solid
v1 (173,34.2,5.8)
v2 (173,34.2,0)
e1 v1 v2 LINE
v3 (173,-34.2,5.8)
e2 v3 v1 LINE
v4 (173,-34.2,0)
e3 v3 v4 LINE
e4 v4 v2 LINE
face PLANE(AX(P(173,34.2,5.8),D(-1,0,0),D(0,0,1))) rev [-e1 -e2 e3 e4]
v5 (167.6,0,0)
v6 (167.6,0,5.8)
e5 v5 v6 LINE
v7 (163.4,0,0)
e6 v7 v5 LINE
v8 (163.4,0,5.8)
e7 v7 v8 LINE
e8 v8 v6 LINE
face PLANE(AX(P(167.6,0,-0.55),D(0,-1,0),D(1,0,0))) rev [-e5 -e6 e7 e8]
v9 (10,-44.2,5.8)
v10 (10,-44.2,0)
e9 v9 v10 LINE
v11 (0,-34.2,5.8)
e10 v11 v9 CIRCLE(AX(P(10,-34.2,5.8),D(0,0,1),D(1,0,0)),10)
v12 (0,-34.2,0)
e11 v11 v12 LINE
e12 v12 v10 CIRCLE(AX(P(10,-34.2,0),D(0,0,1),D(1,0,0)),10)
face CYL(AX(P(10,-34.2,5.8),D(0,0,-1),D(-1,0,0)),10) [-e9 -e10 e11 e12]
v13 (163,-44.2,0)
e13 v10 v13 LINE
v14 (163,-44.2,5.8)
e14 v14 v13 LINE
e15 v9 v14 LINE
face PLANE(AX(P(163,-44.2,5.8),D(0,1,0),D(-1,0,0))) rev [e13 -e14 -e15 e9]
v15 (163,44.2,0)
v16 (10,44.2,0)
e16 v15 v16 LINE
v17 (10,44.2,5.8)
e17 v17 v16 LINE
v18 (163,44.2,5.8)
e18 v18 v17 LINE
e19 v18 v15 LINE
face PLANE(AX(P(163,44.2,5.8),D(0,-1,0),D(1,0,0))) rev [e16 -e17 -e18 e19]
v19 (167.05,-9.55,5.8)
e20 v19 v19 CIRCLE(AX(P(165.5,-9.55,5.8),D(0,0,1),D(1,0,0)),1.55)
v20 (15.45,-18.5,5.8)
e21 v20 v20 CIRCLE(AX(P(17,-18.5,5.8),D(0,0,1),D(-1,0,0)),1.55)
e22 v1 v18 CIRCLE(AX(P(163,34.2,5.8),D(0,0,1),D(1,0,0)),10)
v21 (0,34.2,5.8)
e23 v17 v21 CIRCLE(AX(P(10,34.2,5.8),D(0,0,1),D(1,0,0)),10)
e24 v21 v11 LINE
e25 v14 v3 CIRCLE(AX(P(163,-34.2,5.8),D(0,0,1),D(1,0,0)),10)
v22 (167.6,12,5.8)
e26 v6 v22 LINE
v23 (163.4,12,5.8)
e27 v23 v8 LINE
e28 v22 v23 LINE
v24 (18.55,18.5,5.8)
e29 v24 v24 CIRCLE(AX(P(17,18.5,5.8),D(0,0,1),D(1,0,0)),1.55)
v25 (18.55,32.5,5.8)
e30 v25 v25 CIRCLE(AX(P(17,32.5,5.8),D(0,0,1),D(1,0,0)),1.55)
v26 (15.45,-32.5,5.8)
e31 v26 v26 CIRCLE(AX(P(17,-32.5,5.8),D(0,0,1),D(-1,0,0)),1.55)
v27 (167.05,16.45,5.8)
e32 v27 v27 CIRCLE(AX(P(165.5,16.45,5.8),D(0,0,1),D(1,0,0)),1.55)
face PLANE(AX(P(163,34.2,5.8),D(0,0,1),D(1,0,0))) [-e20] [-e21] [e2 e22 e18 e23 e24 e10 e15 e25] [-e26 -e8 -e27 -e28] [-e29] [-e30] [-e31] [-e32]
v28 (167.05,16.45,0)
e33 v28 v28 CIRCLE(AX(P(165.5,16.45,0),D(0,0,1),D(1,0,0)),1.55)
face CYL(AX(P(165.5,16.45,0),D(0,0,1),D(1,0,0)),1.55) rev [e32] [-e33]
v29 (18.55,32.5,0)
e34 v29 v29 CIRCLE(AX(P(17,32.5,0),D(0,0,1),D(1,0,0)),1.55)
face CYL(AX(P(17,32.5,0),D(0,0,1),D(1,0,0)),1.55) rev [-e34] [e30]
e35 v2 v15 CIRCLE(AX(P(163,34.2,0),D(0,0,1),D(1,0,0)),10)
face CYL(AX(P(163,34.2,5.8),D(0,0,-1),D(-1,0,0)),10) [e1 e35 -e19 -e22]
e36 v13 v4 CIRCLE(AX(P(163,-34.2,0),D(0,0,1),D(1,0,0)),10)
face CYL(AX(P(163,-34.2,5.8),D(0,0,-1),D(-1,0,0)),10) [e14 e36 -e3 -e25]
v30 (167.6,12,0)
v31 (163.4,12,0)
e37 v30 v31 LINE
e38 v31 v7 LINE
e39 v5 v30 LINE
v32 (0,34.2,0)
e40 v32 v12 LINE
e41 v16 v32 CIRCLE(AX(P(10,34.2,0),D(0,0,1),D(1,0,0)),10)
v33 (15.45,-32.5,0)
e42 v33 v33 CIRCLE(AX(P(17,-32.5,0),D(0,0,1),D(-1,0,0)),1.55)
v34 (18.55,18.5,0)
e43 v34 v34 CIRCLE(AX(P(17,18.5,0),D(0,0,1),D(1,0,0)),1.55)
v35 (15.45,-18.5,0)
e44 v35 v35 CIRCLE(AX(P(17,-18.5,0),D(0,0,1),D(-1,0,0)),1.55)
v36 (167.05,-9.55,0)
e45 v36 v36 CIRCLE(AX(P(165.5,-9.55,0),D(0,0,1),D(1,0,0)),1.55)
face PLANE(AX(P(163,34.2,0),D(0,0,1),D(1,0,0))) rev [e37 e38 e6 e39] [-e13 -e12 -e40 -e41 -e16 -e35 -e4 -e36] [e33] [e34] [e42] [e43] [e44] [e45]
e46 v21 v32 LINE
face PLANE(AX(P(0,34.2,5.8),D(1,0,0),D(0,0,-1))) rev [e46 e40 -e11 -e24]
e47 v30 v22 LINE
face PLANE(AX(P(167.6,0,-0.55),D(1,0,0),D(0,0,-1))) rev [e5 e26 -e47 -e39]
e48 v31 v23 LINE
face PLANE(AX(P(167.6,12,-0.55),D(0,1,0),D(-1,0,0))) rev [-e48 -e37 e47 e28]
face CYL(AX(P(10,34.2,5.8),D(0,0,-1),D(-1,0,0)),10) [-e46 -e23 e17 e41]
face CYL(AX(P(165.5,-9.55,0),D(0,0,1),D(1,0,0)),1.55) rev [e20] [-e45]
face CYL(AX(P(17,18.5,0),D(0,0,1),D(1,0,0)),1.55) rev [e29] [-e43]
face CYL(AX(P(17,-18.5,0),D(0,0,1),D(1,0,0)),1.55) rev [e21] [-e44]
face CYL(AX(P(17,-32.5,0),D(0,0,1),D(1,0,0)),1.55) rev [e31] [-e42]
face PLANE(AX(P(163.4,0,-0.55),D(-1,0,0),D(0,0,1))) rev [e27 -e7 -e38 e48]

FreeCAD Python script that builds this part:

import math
import FreeCAD as App
import Part
import Sketcher

V = App.Vector

doc = App.newDocument("Part")
body = doc.addObject("PartDesign::Body", "Body")

# Sketch on XY plane
sketch1 = doc.addObject("Sketcher::SketchObject", "Sketch")
body.addObject(sketch1)
sketch1.AttachmentSupport = (doc.XY_Plane, [""])
sketch1.MapMode = "FlatFace"
sketch1.addGeometry([
    Part.LineSegment(V(163, 44, 0), V(10, 44, 0)),  # 0
    Part.ArcOfCircle(Part.Circle(V(10, 34, 0), V(0, 0, 1), 10), math.radians(90), math.radians(180)),  # 1
    Part.LineSegment(V(0, 34, 0), V(0, -34, 0)),  # 2
    Part.ArcOfCircle(Part.Circle(V(10, -34, 0), V(0, 0, 1), 10), math.radians(180), math.radians(270)),  # 3
    Part.LineSegment(V(10, -44, 0), V(163, -44, 0)),  # 4
    Part.ArcOfCircle(Part.Circle(V(163, -34, 0), V(0, 0, 1), 10), math.radians(-90), math.radians(0)),  # 5
    Part.LineSegment(V(173, -34, 0), V(173, 34, 0)),  # 6
    Part.ArcOfCircle(Part.Circle(V(163, 34, 0), V(0, 0, 1), 10), math.radians(0), math.radians(90)),  # 7
], False)
sketch1.addConstraint([
    Sketcher.Constraint("Tangent", 0, 2, 1, 1),
    Sketcher.Constraint("Tangent", 1, 2, 2, 1),
    Sketcher.Constraint("Tangent", 2, 2, 3, 1),
    Sketcher.Constraint("Tangent", 3, 2, 4, 1),
    Sketcher.Constraint("Tangent", 4, 2, 5, 1),
    Sketcher.Constraint("Tangent", 5, 2, 6, 1),
    Sketcher.Constraint("Tangent", 6, 2, 7, 1),
    Sketcher.Constraint("Tangent", 7, 2, 0, 1),
    Sketcher.Constraint("Horizontal", 0),
    Sketcher.Constraint("Vertical", 2),
    Sketcher.Constraint("Horizontal", 4),
    Sketcher.Constraint("Vertical", 6),
    Sketcher.Constraint("Equal", 1, 3),
    Sketcher.Constraint("Equal", 3, 5),
    Sketcher.Constraint("Equal", 5, 7),
    Sketcher.Constraint("Symmetric", 1, 2, 2, 2, -1, 1),
    Sketcher.Constraint("Radius", 1, 10.0),
    Sketcher.Constraint("DistanceX", 0, 2, 0, 1, 153.0),
    Sketcher.Constraint("DistanceY", 2, 2, 2, 1, 68.4),
])
pad1 = doc.addObject("PartDesign::Pad", "Pad")
body.addObject(pad1)
pad1.Profile = sketch1
pad1.Length = 5.8

# Sketch on XY plane
sketch2 = doc.addObject("Sketcher::SketchObject", "Sketch001")
body.addObject(sketch2)
sketch2.AttachmentSupport = (doc.XY_Plane, [""])
sketch2.MapMode = "FlatFace"
sketch2.AttachmentOffset = App.Placement(V(0, 0, 5.8), App.Rotation())
sketch2.addGeometry([
    Part.LineSegment(V(163.4, 12, 0), V(163.4, 0, 0)),
    Part.LineSegment(V(163.4, 0, 0), V(167.6, 0, 0)),
    Part.LineSegment(V(167.6, 0, 0), V(167.6, 12, 0)),
    Part.LineSegment(V(167.6, 12, 0), V(163.4, 12, 0)),
], False)
sketch2.addConstraint([
    Sketcher.Constraint("Coincident", 0, 2, 1, 1),
    Sketcher.Constraint("Coincident", 1, 2, 2, 1),
    Sketcher.Constraint("Coincident", 2, 2, 3, 1),
    Sketcher.Constraint("Coincident", 3, 2, 0, 1),
    Sketcher.Constraint("Vertical", 0),
    Sketcher.Constraint("Horizontal", 1),
    Sketcher.Constraint("Vertical", 2),
    Sketcher.Constraint("Horizontal", 3),
    Sketcher.Constraint("PointOnObject", 0, 2, -1),
    Sketcher.Constraint("DistanceY", 0, 2, 0, 1, 12.0),
    Sketcher.Constraint("DistanceX", 1, 1, 1, 2, 4.2),
    Sketcher.Constraint("DistanceX", -1, 1, 0, 2, 163.4),
])
pocket1 = doc.addObject("PartDesign::Pocket", "Pocket")
body.addObject(pocket1)
pocket1.Profile = sketch2
pocket1.Length = 6.35

# Sketch on XY plane
sketch3 = doc.addObject("Sketcher::SketchObject", "Sketch002")
body.addObject(sketch3)
sketch3.AttachmentSupport = (doc.XY_Plane, [""])
sketch3.MapMode = "FlatFace"
sketch3.AttachmentOffset = App.Placement(V(0, 0, 5.8), App.Rotation())
sketch3.addGeometry([
    Part.Circle(V(17, 32.5, 0), V(0, 0, 1), 1.6),
    Part.Circle(V(17, 18.5, 0), V(0, 0, 1), 1.6),
    Part.Circle(V(17, -18.5, 0), V(0, 0, 1), 1.6),
    Part.Circle(V(17, -32.5, 0), V(0, 0, 1), 1.6),
], False)
sketch3.addConstraint([
    Sketcher.Constraint("Equal", 0, 1),
    Sketcher.Constraint("Equal", 1, 2),
    Sketcher.Constraint("Equal", 2, 3),
    Sketcher.Constraint("Symmetric", 1, 3, 2, 3, -1),
    Sketcher.Constraint("Symmetric", 0, 3, 3, 3, -1),
    Sketcher.Constraint("Vertical", 0, 3, 1, 3),
    Sketcher.Constraint("Diameter", 0, 3.1),
    Sketcher.Constraint("DistanceX", -1, 1, 0, 3, 17.0),
    Sketcher.Constraint("DistanceY", 1, 3, 0, 3, 14.0),
    Sketcher.Constraint("DistanceY", 2, 3, 1, 3, 37.0),
])
pocket2 = doc.addObject("PartDesign::Pocket", "Pocket001")
body.addObject(pocket2)
pocket2.Profile = sketch3
pocket2.Type = "ThroughAll"

# Sketch on XY plane
sketch4 = doc.addObject("Sketcher::SketchObject", "Sketch003")
body.addObject(sketch4)
sketch4.AttachmentSupport = (doc.XY_Plane, [""])
sketch4.MapMode = "FlatFace"
sketch4.AttachmentOffset = App.Placement(V(0, 0, 5.8), App.Rotation())
sketch4.addGeometry([
    Part.Circle(V(165.5, 16.4, 0), V(0, 0, 1), 1.6),
    Part.Circle(V(165.5, -9.6, 0), V(0, 0, 1), 1.6),
], False)
sketch4.addConstraint([
    Sketcher.Constraint("Equal", 0, 1),
    Sketcher.Constraint("Vertical", 0, 3, 1, 3),
    Sketcher.Constraint("Diameter", 0, 3.1),
    Sketcher.Constraint("DistanceY", 1, 3, 0, 3, 26.0),
    Sketcher.Constraint("DistanceX", -1, 1, 0, 3, 165.5),
    Sketcher.Constraint("DistanceY", -1, 1, 0, 3, 16.45),
])
pocket3 = doc.addObject("PartDesign::Pocket", "Pocket002")
body.addObject(pocket3)
pocket3.Profile = sketch4
pocket3.Type = "ThroughAll"

doc.recompute()
